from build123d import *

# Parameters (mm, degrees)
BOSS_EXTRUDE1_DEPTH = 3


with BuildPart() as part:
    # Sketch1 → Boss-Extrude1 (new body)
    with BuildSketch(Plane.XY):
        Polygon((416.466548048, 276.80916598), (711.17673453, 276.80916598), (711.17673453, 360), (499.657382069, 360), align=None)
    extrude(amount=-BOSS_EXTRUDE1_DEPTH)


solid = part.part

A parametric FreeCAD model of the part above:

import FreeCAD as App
import Part
import Sketcher
from FreeCAD import Vector
Q = App.Units.Quantity


def add_polygon(sketch, points):
    """Adds a closed chain of lines whose ends are joined by coincident constraints."""
    first, n = sketch.GeometryCount, len(points)
    for a, b in zip(points, points[1:] + points[:1]):
        sketch.addGeometry(Part.LineSegment(App.Vector(*a, 0), App.Vector(*b, 0)), False)
    for i in range(n):
        sketch.addConstraint(Sketcher.Constraint("Coincident", first + i, 2, first + (i + 1) % n, 1))

doc = App.newDocument("Part")
params = doc.addObject("Spreadsheet::Sheet", "Params")
for row, (alias, value) in enumerate([
    ("pad1_length", "3 mm"),
], start=1):
    params.set(f"A{row}", alias)
    params.set(f"B{row}", "=" + value)
    params.setAlias(f"B{row}", alias)

body = doc.addObject("PartDesign::Body", "Body")

sketch1 = body.newObject("Sketcher::SketchObject", "Sketch")
sketch1.AttachmentSupport = (doc.getObject("XY_Plane"), [""])
sketch1.MapMode = "FlatFace"
add_polygon(sketch1, [(416.466548, 276.809166), (711.176735, 276.809166), (711.176735, 360), (499.657382, 360)])
sketch1.addConstraint(Sketcher.Constraint("Horizontal", 0))
sketch1.addConstraint(Sketcher.Constraint("Vertical", 1))
sketch1.addConstraint(Sketcher.Constraint("Horizontal", 2))
sketch1.addConstraint(Sketcher.Constraint("Angle", 3, Q("-135 deg")))
sketch1.addConstraint(Sketcher.Constraint("DistanceY", -1, 1, 1, 2, 360.0))
sketch1.addConstraint(Sketcher.Constraint("DistanceX", 0, 1, 0, 2, 294.710186))
sketch1.addConstraint(Sketcher.Constraint("DistanceX", 2, 2, 2, 1, 211.519352))
sketch1.addConstraint(Sketcher.Constraint("DistanceX", -1, 1, 3, 2, 416.466548))
pad1 = body.newObject("PartDesign::Pad", "Pad")
pad1.Profile = sketch1
pad1.setExpression("Length", "Params.pad1_length")
pad1.Reversed = True

doc.recompute()
